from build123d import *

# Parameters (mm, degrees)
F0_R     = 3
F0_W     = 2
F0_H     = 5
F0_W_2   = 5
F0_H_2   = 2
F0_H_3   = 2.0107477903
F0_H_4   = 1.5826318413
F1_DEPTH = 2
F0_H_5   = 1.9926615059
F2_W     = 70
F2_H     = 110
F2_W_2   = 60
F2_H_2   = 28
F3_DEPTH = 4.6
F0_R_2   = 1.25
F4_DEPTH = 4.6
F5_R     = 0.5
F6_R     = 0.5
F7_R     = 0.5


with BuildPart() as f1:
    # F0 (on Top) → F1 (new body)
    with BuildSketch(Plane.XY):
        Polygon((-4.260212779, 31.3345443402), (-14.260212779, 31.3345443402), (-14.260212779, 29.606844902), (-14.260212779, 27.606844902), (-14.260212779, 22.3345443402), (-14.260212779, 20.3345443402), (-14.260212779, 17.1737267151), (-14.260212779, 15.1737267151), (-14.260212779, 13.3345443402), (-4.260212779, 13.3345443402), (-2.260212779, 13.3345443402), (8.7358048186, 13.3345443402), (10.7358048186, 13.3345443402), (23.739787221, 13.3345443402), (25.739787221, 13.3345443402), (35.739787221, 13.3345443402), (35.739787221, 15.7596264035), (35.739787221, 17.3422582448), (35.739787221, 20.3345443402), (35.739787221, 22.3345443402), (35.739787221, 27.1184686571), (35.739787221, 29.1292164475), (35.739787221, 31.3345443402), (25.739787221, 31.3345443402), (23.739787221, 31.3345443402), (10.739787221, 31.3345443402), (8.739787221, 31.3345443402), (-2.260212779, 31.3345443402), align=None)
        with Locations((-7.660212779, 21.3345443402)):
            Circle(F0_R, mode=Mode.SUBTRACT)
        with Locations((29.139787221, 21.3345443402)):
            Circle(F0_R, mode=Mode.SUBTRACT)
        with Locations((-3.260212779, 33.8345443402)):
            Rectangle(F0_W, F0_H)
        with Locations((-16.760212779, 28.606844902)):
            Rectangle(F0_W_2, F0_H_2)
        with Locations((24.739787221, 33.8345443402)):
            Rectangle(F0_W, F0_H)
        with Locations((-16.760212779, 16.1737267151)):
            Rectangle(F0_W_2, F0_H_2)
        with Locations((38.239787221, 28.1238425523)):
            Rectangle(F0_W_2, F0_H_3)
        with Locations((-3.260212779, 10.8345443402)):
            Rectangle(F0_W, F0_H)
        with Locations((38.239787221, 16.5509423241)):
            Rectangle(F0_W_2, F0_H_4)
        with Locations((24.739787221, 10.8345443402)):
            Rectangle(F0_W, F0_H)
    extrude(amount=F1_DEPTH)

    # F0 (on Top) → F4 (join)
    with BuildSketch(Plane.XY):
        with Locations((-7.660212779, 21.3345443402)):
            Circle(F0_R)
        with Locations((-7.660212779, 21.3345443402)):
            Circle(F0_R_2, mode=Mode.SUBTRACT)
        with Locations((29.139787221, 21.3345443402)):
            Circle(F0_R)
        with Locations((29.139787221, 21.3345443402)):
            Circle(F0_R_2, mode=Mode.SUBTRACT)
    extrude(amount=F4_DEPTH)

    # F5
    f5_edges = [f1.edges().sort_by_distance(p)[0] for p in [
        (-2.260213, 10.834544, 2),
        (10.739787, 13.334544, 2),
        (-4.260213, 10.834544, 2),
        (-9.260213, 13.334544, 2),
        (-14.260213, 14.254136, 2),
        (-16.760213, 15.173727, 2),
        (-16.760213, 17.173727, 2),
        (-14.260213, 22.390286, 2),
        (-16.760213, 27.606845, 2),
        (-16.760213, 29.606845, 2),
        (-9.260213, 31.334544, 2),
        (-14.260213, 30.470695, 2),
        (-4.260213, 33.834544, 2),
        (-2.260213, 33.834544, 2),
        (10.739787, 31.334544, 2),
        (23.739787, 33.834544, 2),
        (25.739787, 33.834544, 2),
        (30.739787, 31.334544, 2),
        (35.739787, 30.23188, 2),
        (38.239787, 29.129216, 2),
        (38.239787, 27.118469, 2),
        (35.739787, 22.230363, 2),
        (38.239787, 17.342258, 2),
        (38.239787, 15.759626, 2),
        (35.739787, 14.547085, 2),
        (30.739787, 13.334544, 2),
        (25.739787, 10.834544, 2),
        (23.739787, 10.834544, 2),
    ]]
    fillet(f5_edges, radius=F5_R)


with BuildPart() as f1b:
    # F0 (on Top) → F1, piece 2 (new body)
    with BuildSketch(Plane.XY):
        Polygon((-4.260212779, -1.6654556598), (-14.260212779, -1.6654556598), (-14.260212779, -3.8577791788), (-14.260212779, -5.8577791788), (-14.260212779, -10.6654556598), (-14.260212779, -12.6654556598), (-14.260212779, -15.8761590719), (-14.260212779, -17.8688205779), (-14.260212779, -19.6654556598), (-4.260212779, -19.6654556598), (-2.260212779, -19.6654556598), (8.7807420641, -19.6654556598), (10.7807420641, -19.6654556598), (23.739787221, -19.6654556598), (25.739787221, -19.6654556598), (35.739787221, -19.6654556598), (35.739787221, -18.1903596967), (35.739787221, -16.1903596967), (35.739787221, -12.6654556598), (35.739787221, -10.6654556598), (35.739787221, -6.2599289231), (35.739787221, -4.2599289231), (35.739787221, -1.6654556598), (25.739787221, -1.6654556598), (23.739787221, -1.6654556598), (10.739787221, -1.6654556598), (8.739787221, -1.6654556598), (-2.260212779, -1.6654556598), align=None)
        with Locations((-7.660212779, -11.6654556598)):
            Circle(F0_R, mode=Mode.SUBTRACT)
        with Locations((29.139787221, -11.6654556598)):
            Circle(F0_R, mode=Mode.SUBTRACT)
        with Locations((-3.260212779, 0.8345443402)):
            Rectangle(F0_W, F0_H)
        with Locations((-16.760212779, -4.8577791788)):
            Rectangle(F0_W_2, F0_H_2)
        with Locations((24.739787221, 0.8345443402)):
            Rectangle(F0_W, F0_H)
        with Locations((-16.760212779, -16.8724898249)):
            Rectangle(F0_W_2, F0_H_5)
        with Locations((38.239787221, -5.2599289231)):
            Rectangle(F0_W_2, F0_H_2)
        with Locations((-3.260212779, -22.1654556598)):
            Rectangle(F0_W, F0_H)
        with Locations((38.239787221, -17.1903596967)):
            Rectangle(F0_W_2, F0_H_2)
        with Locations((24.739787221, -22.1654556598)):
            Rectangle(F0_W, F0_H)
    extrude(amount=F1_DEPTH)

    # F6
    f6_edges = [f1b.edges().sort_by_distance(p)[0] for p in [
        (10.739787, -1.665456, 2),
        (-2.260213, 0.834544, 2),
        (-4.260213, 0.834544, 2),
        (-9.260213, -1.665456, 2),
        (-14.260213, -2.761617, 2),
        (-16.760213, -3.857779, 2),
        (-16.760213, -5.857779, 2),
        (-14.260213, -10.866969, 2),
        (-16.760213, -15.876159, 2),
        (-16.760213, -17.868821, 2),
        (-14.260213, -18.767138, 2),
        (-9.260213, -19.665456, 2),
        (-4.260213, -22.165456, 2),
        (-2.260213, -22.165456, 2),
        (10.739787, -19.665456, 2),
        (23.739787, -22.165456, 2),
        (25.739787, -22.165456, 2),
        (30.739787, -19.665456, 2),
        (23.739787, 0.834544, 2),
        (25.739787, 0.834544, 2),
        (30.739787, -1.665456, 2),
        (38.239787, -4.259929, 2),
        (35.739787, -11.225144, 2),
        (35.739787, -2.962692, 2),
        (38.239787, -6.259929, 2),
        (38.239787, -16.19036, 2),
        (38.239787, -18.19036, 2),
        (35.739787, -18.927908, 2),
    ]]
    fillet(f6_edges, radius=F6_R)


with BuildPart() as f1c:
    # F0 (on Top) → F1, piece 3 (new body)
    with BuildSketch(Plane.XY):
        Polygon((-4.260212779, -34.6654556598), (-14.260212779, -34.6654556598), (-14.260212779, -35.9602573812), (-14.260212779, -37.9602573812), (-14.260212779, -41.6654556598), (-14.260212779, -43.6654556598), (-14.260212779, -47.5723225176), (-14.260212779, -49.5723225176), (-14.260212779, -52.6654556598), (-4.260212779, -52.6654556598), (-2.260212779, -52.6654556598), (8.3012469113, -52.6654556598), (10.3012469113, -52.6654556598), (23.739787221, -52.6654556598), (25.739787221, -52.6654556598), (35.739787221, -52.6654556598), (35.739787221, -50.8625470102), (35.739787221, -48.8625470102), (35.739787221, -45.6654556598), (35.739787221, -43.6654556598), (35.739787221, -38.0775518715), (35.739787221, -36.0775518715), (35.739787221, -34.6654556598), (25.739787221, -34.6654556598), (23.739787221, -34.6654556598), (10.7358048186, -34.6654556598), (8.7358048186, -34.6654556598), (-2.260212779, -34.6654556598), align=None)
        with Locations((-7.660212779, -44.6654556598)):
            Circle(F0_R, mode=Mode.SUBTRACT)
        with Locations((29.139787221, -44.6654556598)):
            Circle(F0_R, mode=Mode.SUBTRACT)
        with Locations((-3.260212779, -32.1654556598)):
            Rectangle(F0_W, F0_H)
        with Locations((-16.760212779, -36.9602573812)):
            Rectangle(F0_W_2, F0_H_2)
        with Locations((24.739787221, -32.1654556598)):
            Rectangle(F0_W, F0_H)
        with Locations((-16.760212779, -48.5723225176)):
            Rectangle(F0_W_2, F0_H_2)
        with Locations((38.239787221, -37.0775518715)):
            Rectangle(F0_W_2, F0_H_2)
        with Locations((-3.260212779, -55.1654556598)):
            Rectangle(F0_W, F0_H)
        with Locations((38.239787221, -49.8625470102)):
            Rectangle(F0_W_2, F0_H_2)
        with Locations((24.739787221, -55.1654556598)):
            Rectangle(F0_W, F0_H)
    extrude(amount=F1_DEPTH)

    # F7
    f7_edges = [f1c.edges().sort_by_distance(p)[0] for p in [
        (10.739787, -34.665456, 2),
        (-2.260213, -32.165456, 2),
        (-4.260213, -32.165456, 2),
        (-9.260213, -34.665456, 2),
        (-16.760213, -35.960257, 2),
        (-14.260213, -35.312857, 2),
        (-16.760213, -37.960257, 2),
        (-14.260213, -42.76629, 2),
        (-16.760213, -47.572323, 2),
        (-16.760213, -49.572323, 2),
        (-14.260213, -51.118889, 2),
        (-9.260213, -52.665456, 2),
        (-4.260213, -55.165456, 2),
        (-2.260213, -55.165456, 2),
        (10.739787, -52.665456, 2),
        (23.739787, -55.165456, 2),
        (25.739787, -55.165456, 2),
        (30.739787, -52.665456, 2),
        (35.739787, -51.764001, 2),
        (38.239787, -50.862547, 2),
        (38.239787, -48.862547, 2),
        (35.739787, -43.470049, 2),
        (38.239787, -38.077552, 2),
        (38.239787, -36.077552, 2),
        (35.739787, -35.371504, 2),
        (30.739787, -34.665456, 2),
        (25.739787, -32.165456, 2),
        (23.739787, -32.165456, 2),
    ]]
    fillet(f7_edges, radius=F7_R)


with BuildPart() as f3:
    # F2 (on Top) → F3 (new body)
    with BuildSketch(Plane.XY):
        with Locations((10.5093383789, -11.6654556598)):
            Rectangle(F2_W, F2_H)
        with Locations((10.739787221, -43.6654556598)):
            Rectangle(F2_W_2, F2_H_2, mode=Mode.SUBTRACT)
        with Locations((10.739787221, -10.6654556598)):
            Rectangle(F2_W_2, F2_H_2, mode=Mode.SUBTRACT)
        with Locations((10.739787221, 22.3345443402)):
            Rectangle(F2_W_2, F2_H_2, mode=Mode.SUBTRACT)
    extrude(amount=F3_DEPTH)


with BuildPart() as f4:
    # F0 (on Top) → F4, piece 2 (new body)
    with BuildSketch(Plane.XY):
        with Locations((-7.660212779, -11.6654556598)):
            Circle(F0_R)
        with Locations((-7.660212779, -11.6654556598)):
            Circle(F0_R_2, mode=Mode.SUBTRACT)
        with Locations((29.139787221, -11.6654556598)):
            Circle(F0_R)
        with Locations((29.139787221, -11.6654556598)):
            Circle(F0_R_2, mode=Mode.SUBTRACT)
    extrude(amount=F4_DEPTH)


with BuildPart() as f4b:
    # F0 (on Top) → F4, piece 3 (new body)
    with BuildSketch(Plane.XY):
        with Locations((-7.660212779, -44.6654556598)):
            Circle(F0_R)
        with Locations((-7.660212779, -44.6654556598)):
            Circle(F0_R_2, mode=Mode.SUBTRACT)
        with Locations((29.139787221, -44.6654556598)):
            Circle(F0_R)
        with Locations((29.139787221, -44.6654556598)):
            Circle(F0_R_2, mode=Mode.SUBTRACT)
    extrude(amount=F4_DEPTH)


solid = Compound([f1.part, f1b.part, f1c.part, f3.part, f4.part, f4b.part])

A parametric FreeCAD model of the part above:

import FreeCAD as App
import Part
import Sketcher
from FreeCAD import Vector
Q = App.Units.Quantity


def edges_at(feature, points):
    """Names of the edges that pass closest to the given points."""
    edges = feature.Shape.Edges
    near = lambda p: min(range(len(edges)), key=lambda i: edges[i].distToShape(Part.Vertex(*p))[0])
    return sorted({f"Edge{near(p) + 1}" for p in points})


def add_polygon(sketch, points):
    """Adds a closed chain of lines whose ends are joined by coincident constraints."""
    first, n = sketch.GeometryCount, len(points)
    for a, b in zip(points, points[1:] + points[:1]):
        sketch.addGeometry(Part.LineSegment(App.Vector(*a, 0), App.Vector(*b, 0)), False)
    for i in range(n):
        sketch.addConstraint(Sketcher.Constraint("Coincident", first + i, 2, first + (i + 1) % n, 1))

doc = App.newDocument("Part")
body = doc.addObject("PartDesign::Body", "Body")

# Sketch on XY plane
sketch1 = body.newObject("Sketcher::SketchObject", "Sketch")
sketch1.AttachmentSupport = (doc.getObject("XY_Plane"), [""])
sketch1.MapMode = "FlatFace"
add_polygon(sketch1, [(-14.260213, 31.334544), (-14.260213, 29.606845), (-19.260213, 29.606845), (-19.260213, 27.606845), (-14.260213, 27.606845), (-14.260213, 17.173727), (-19.260213, 17.173727), (-19.260213, 15.173727), (-14.260213, 15.173727), (-14.260213, 13.334544), (-4.260213, 13.334544), (-4.260213, 8.334544), (-2.260213, 8.334544), (-2.260213, 13.334544), (23.739787, 13.334544), (23.739787, 8.334544), (25.739787, 8.334544), (25.739787, 13.334544), (35.739787, 13.334544), (35.739787, 15.759626), (40.739787, 15.759626), (40.739787, 17.342258), (35.739787, 17.342258), (35.739787, 27.118469), (40.739787, 27.118469), (40.739787, 29.129216), (35.739787, 29.129216), (35.739787, 31.334544), (25.739787, 31.334544), (25.739787, 36.334544), (23.739787, 36.334544), (23.739787, 31.334544), (-2.260213, 31.334544), (-2.260213, 36.334544), (-4.260213, 36.334544), (-4.260213, 31.334544)])  # lines 0-35
sketch1.addGeometry(Part.Circle(Vector(-7.660213, 21.334544, 0), Vector(0, 0, 1), 3), False)  # 36
sketch1.addGeometry(Part.Circle(Vector(29.139787, 21.334544, 0), Vector(0, 0, 1), 3), False)  # 37
sketch1.addConstraint([
    Sketcher.Constraint("Vertical", 0),
    Sketcher.Constraint("Horizontal", 1),
    Sketcher.Constraint("Vertical", 2),
    Sketcher.Constraint("Horizontal", 3),
    Sketcher.Constraint("Vertical", 4),
    Sketcher.Constraint("Horizontal", 5),
    Sketcher.Constraint("Vertical", 6),
    Sketcher.Constraint("Horizontal", 7),
    Sketcher.Constraint("Vertical", 8),
    Sketcher.Constraint("Horizontal", 9),
    Sketcher.Constraint("Vertical", 10),
    Sketcher.Constraint("Horizontal", 11),
    Sketcher.Constraint("Vertical", 12),
    Sketcher.Constraint("Horizontal", 13),
    Sketcher.Constraint("Vertical", 14),
    Sketcher.Constraint("Horizontal", 15),
    Sketcher.Constraint("Vertical", 16),
    Sketcher.Constraint("Horizontal", 17),
    Sketcher.Constraint("Vertical", 18),
    Sketcher.Constraint("Horizontal", 19),
    Sketcher.Constraint("Vertical", 20),
    Sketcher.Constraint("Horizontal", 21),
    Sketcher.Constraint("Vertical", 22),
    Sketcher.Constraint("Horizontal", 23),
    Sketcher.Constraint("Vertical", 24),
    Sketcher.Constraint("Horizontal", 25),
    Sketcher.Constraint("Vertical", 26),
    Sketcher.Constraint("Horizontal", 27),
    Sketcher.Constraint("Vertical", 28),
    Sketcher.Constraint("Horizontal", 29),
    Sketcher.Constraint("Vertical", 30),
    Sketcher.Constraint("Horizontal", 31),
    Sketcher.Constraint("Vertical", 32),
    Sketcher.Constraint("Horizontal", 33),
    Sketcher.Constraint("Vertical", 34),
    Sketcher.Constraint("Horizontal", 35),
    Sketcher.Constraint("Equal", 36, 37),
    Sketcher.Constraint("Horizontal", 36, 3, 37, 3),
    Sketcher.Constraint("Horizontal", 9, 2, 12, 2),
    Sketcher.Constraint("Horizontal", 11, 2, 14, 2),
    Sketcher.Constraint("Horizontal", 13, 2, 16, 2),
    Sketcher.Constraint("Horizontal", 27, 2, 30, 2),
    Sketcher.Constraint("Horizontal", 29, 2, 32, 2),
    Sketcher.Constraint("Horizontal", 31, 2, 34, 2),
    Sketcher.Constraint("Vertical", 0, 2, 3, 2),
    Sketcher.Constraint("Vertical", 2, 2, 5, 2),
    Sketcher.Constraint("Vertical", 4, 2, 7, 2),
    Sketcher.Constraint("Vertical", 18, 2, 21, 2),
    Sketcher.Constraint("Vertical", 20, 2, 23, 2),
    Sketcher.Constraint("Vertical", 22, 2, 25, 2),
    Sketcher.Constraint("Vertical", 16, 2, 27, 2),
    Sketcher.Constraint("Vertical", 14, 2, 29, 2),
    Sketcher.Constraint("Vertical", 12, 2, 31, 2),
    Sketcher.Constraint("Vertical", 10, 2, 33, 2),
    Sketcher.Constraint("Equal", 11, 15),
    Sketcher.Constraint("Equal", 9, 17),
    Sketcher.Constraint("Equal", 7, 19),
    Sketcher.Constraint("Equal", 33, 2),
    Sketcher.Constraint("Equal", 2, 6),
    Sketcher.Constraint("Equal", 25, 10),
    Sketcher.Constraint("Equal", 16, 28),
    Sketcher.Constraint("Diameter", 36, Q("6 mm")),
    Sketcher.Constraint("DistanceX", 1, 2, 1, 1, Q("5 mm")),
    Sketcher.Constraint("DistanceX", 9, 1, 9, 2, Q("10 mm")),
    Sketcher.Constraint("DistanceX", 11, 1, 11, 2, Q("2 mm")),
    Sketcher.Constraint("DistanceX", 13, 1, 13, 2, Q("26 mm")),
    Sketcher.Constraint("DistanceY", 8, 2, 36, 3, Q("8 mm")),
    Sketcher.Constraint("DistanceY", 37, 3, 26, 2, Q("10 mm")),
    Sketcher.Constraint("DistanceX", 36, 3, 37, 3, Q("36.8 mm")),
    Sketcher.Constraint("DistanceX", 0, 2, 36, 3, Q("6.6 mm")),
    Sketcher.Constraint("DistanceY", 0, 2, 0, 1, Q("1.727699 mm")),
    Sketcher.Constraint("DistanceY", 4, 2, 4, 1, Q("10.433118 mm")),
    Sketcher.Constraint("DistanceY", 20, 1, 20, 2, Q("1.582632 mm")),
    Sketcher.Constraint("DistanceY", 22, 1, 22, 2, Q("9.77621 mm")),
    Sketcher.Constraint("DistanceY", 18, 1, 18, 2, Q("2.425082 mm")),
    Sketcher.Constraint("DistanceY", 24, 1, 24, 2, Q("2.010748 mm")),
    Sketcher.Constraint("DistanceY", -1, 1, 20, 2, Q("17.342258 mm")),
    Sketcher.Constraint("DistanceX", 36, 3, -1, 1, Q("7.660213 mm")),
])
pad1 = body.newObject("PartDesign::Pad", "Pad")
pad1.Profile = sketch1
pad1.Length = 2

# Sketch on XY plane
sketch2 = body.newObject("Sketcher::SketchObject", "Sketch001")
sketch2.AttachmentSupport = (doc.getObject("XY_Plane"), [""])
sketch2.MapMode = "FlatFace"
sketch2.addGeometry([
    Part.Circle(Vector(-7.660213, 21.334544, 0), Vector(0, 0, 1), 3),
    Part.Circle(Vector(-7.660213, 21.334544, 0), Vector(0, 0, 1), 1.25),
    Part.Circle(Vector(29.139787, 21.334544, 0), Vector(0, 0, 1), 3),
    Part.Circle(Vector(29.139787, 21.334544, 0), Vector(0, 0, 1), 1.25),
], False)
sketch2.addConstraint([
    Sketcher.Constraint("Coincident", 1, 3, 0, 3),
    Sketcher.Constraint("Coincident", 3, 3, 2, 3),
    Sketcher.Constraint("Equal", 0, 2),
    Sketcher.Constraint("Equal", 1, 3),
    Sketcher.Constraint("Horizontal", 1, 3, 2, 3),
    Sketcher.Constraint("Diameter", 0, Q("6 mm")),
    Sketcher.Constraint("Diameter", 1, Q("2.5 mm")),
    Sketcher.Constraint("DistanceX", 0, 3, 2, 3, Q("36.8 mm")),
    Sketcher.Constraint("DistanceX", 0, 3, -1, 1, Q("7.660213 mm")),
    Sketcher.Constraint("DistanceY", -1, 1, 0, 3, Q("21.334544 mm")),
])
pad2 = body.newObject("PartDesign::Pad", "Pad001")
pad2.Profile = sketch2
pad2.Length = 4.6
doc.recompute()

fillet = body.newObject("PartDesign::Fillet", "Fillet")
fillet.Base = (pad2, edges_at(pad2, [
    (-2.26, 10.835, 2),
    (10.74, 13.335, 2),
    (-4.26, 10.835, 2),
    (-9.26, 13.335, 2),
    (-14.26, 14.254, 2),
    (-16.76, 15.174, 2),
    (-16.76, 17.174, 2),
    (-14.26, 22.39, 2),
    (-16.76, 27.607, 2),
    (-16.76, 29.607, 2),
    (-9.26, 31.335, 2),
    (-14.26, 30.471, 2),
    (-4.26, 33.835, 2),
    (-2.26, 33.835, 2),
    (10.74, 31.335, 2),
    (23.74, 33.835, 2),
    (25.74, 33.835, 2),
    (30.74, 31.335, 2),
    (35.74, 30.232, 2),
    (38.24, 29.129, 2),
    (38.24, 27.118, 2),
    (35.74, 22.23, 2),
    (38.24, 17.342, 2),
    (38.24, 15.76, 2),
    (35.74, 14.547, 2),
    (30.74, 13.335, 2),
    (25.74, 10.835, 2),
    (23.74, 10.835, 2),
]))
fillet.Radius = 0.5
body2 = doc.addObject("PartDesign::Body", "Body001")

# Sketch on XY plane
sketch3 = body2.newObject("Sketcher::SketchObject", "Sketch002")
sketch3.AttachmentSupport = (doc.getObject("XY_Plane001"), [""])
sketch3.MapMode = "FlatFace"
add_polygon(sketch3, [(-14.260213, -1.665456), (-14.260213, -3.857779), (-19.260213, -3.857779), (-19.260213, -5.857779), (-14.260213, -5.857779), (-14.260213, -15.876159), (-19.260213, -15.876159), (-19.260213, -17.868821), (-14.260213, -17.868821), (-14.260213, -19.665456), (-4.260213, -19.665456), (-4.260213, -24.665456), (-2.260213, -24.665456), (-2.260213, -19.665456), (23.739787, -19.665456), (23.739787, -24.665456), (25.739787, -24.665456), (25.739787, -19.665456), (35.739787, -19.665456), (35.739787, -18.19036), (40.739787, -18.19036), (40.739787, -16.19036), (35.739787, -16.19036), (35.739787, -6.259929), (40.739787, -6.259929), (40.739787, -4.259929), (35.739787, -4.259929), (35.739787, -1.665456), (25.739787, -1.665456), (25.739787, 3.334544), (23.739787, 3.334544), (23.739787, -1.665456), (-2.260213, -1.665456), (-2.260213, 3.334544), (-4.260213, 3.334544), (-4.260213, -1.665456)])  # lines 0-35
sketch3.addGeometry(Part.Circle(Vector(-7.660213, -11.665456, 0), Vector(0, 0, 1), 3), False)  # 36
sketch3.addGeometry(Part.Circle(Vector(29.139787, -11.665456, 0), Vector(0, 0, 1), 3), False)  # 37
sketch3.addConstraint([
    Sketcher.Constraint("Vertical", 0),
    Sketcher.Constraint("Horizontal", 1),
    Sketcher.Constraint("Vertical", 2),
    Sketcher.Constraint("Horizontal", 3),
    Sketcher.Constraint("Vertical", 4),
    Sketcher.Constraint("Horizontal", 5),
    Sketcher.Constraint("Vertical", 6),
    Sketcher.Constraint("Horizontal", 7),
    Sketcher.Constraint("Vertical", 8),
    Sketcher.Constraint("Horizontal", 9),
    Sketcher.Constraint("Vertical", 10),
    Sketcher.Constraint("Horizontal", 11),
    Sketcher.Constraint("Vertical", 12),
    Sketcher.Constraint("Horizontal", 13),
    Sketcher.Constraint("Vertical", 14),
    Sketcher.Constraint("Horizontal", 15),
    Sketcher.Constraint("Vertical", 16),
    Sketcher.Constraint("Horizontal", 17),
    Sketcher.Constraint("Vertical", 18),
    Sketcher.Constraint("Horizontal", 19),
    Sketcher.Constraint("Vertical", 20),
    Sketcher.Constraint("Horizontal", 21),
    Sketcher.Constraint("Vertical", 22),
    Sketcher.Constraint("Horizontal", 23),
    Sketcher.Constraint("Vertical", 24),
    Sketcher.Constraint("Horizontal", 25),
    Sketcher.Constraint("Vertical", 26),
    Sketcher.Constraint("Horizontal", 27),
    Sketcher.Constraint("Vertical", 28),
    Sketcher.Constraint("Horizontal", 29),
    Sketcher.Constraint("Vertical", 30),
    Sketcher.Constraint("Horizontal", 31),
    Sketcher.Constraint("Vertical", 32),
    Sketcher.Constraint("Horizontal", 33),
    Sketcher.Constraint("Vertical", 34),
    Sketcher.Constraint("Horizontal", 35),
    Sketcher.Constraint("Equal", 36, 37),
    Sketcher.Constraint("Horizontal", 36, 3, 37, 3),
    Sketcher.Constraint("Horizontal", 9, 2, 12, 2),
    Sketcher.Constraint("Horizontal", 11, 2, 14, 2),
    Sketcher.Constraint("Horizontal", 13, 2, 16, 2),
    Sketcher.Constraint("Horizontal", 27, 2, 30, 2),
    Sketcher.Constraint("Horizontal", 29, 2, 32, 2),
    Sketcher.Constraint("Horizontal", 31, 2, 34, 2),
    Sketcher.Constraint("Vertical", 0, 2, 3, 2),
    Sketcher.Constraint("Vertical", 2, 2, 5, 2),
    Sketcher.Constraint("Vertical", 4, 2, 7, 2),
    Sketcher.Constraint("Vertical", 18, 2, 21, 2),
    Sketcher.Constraint("Vertical", 20, 2, 23, 2),
    Sketcher.Constraint("Vertical", 22, 2, 25, 2),
    Sketcher.Constraint("Vertical", 16, 2, 27, 2),
    Sketcher.Constraint("Vertical", 14, 2, 29, 2),
    Sketcher.Constraint("Vertical", 12, 2, 31, 2),
    Sketcher.Constraint("Vertical", 10, 2, 33, 2),
    Sketcher.Constraint("Equal", 11, 15),
    Sketcher.Constraint("Equal", 9, 17),
    Sketcher.Constraint("Equal", 7, 19),
    Sketcher.Constraint("Equal", 33, 2),
    Sketcher.Constraint("Equal", 25, 10),
    Sketcher.Constraint("Equal", 2, 20),
    Sketcher.Constraint("Equal", 20, 24),
    Sketcher.Constraint("Equal", 16, 28),
    Sketcher.Constraint("Diameter", 36, Q("6 mm")),
    Sketcher.Constraint("DistanceX", 1, 2, 1, 1, Q("5 mm")),
    Sketcher.Constraint("DistanceX", 9, 1, 9, 2, Q("10 mm")),
    Sketcher.Constraint("DistanceX", 11, 1, 11, 2, Q("2 mm")),
    Sketcher.Constraint("DistanceX", 13, 1, 13, 2, Q("26 mm")),
    Sketcher.Constraint("DistanceY", 8, 2, 36, 3, Q("8 mm")),
    Sketcher.Constraint("DistanceY", 37, 3, 26, 2, Q("10 mm")),
    Sketcher.Constraint("DistanceX", 36, 3, 37, 3, Q("36.8 mm")),
    Sketcher.Constraint("DistanceX", 0, 2, 36, 3, Q("6.6 mm")),
    Sketcher.Constraint("DistanceY", 4, 2, 4, 1, Q("10.01838 mm")),
    Sketcher.Constraint("DistanceY", 6, 2, 6, 1, Q("1.992662 mm")),
    Sketcher.Constraint("DistanceY", 22, 1, 22, 2, Q("9.930431 mm")),
    Sketcher.Constraint("DistanceY", 0, 2, 0, 1, Q("2.192324 mm")),
    Sketcher.Constraint("DistanceY", 18, 1, 18, 2, Q("1.475096 mm")),
    Sketcher.Constraint("DistanceY", 0, 2, -1, 1, Q("3.857779 mm")),
    Sketcher.Constraint("DistanceX", 36, 3, -1, 1, Q("7.660213 mm")),
])
pad3 = body2.newObject("PartDesign::Pad", "Pad002")
pad3.Profile = sketch3
pad3.Length = 2
doc.recompute()

fillet2 = body2.newObject("PartDesign::Fillet", "Fillet001")
fillet2.Base = (pad3, edges_at(pad3, [
    (10.74, -1.665, 2),
    (-2.26, 0.835, 2),
    (-4.26, 0.835, 2),
    (-9.26, -1.665, 2),
    (-14.26, -2.762, 2),
    (-16.76, -3.858, 2),
    (-16.76, -5.858, 2),
    (-14.26, -10.867, 2),
    (-16.76, -15.876, 2),
    (-16.76, -17.869, 2),
    (-14.26, -18.767, 2),
    (-9.26, -19.665, 2),
    (-4.26, -22.165, 2),
    (-2.26, -22.165, 2),
    (10.74, -19.665, 2),
    (23.74, -22.165, 2),
    (25.74, -22.165, 2),
    (30.74, -19.665, 2),
    (23.74, 0.835, 2),
    (25.74, 0.835, 2),
    (30.74, -1.665, 2),
    (38.24, -4.26, 2),
    (35.74, -11.225, 2),
    (35.74, -2.963, 2),
    (38.24, -6.26, 2),
    (38.24, -16.19, 2),
    (38.24, -18.19, 2),
    (35.74, -18.928, 2),
]))
fillet2.Radius = 0.5
body3 = doc.addObject("PartDesign::Body", "Body002")

# Sketch on XY plane
sketch4 = body3.newObject("Sketcher::SketchObject", "Sketch003")
sketch4.AttachmentSupport = (doc.getObject("XY_Plane002"), [""])
sketch4.MapMode = "FlatFace"
add_polygon(sketch4, [(-14.260213, -34.665456), (-14.260213, -35.960257), (-19.260213, -35.960257), (-19.260213, -37.960257), (-14.260213, -37.960257), (-14.260213, -47.572323), (-19.260213, -47.572323), (-19.260213, -49.572323), (-14.260213, -49.572323), (-14.260213, -52.665456), (-4.260213, -52.665456), (-4.260213, -57.665456), (-2.260213, -57.665456), (-2.260213, -52.665456), (23.739787, -52.665456), (23.739787, -57.665456), (25.739787, -57.665456), (25.739787, -52.665456), (35.739787, -52.665456), (35.739787, -50.862547), (40.739787, -50.862547), (40.739787, -48.862547), (35.739787, -48.862547), (35.739787, -38.077552), (40.739787, -38.077552), (40.739787, -36.077552), (35.739787, -36.077552), (35.739787, -34.665456), (25.739787, -34.665456), (25.739787, -29.665456), (23.739787, -29.665456), (23.739787, -34.665456), (-2.260213, -34.665456), (-2.260213, -29.665456), (-4.260213, -29.665456), (-4.260213, -34.665456)])  # lines 0-35
sketch4.addGeometry(Part.Circle(Vector(-7.660213, -44.665456, 0), Vector(0, 0, 1), 3), False)  # 36
sketch4.addGeometry(Part.Circle(Vector(29.139787, -44.665456, 0), Vector(0, 0, 1), 3), False)  # 37
sketch4.addConstraint([
    Sketcher.Constraint("Vertical", 0),
    Sketcher.Constraint("Horizontal", 1),
    Sketcher.Constraint("Vertical", 2),
    Sketcher.Constraint("Horizontal", 3),
    Sketcher.Constraint("Vertical", 4),
    Sketcher.Constraint("Horizontal", 5),
    Sketcher.Constraint("Vertical", 6),
    Sketcher.Constraint("Horizontal", 7),
    Sketcher.Constraint("Vertical", 8),
    Sketcher.Constraint("Horizontal", 9),
    Sketcher.Constraint("Vertical", 10),
    Sketcher.Constraint("Horizontal", 11),
    Sketcher.Constraint("Vertical", 12),
    Sketcher.Constraint("Horizontal", 13),
    Sketcher.Constraint("Vertical", 14),
    Sketcher.Constraint("Horizontal", 15),
    Sketcher.Constraint("Vertical", 16),
    Sketcher.Constraint("Horizontal", 17),
    Sketcher.Constraint("Vertical", 18),
    Sketcher.Constraint("Horizontal", 19),
    Sketcher.Constraint("Vertical", 20),
    Sketcher.Constraint("Horizontal", 21),
    Sketcher.Constraint("Vertical", 22),
    Sketcher.Constraint("Horizontal", 23),
    Sketcher.Constraint("Vertical", 24),
    Sketcher.Constraint("Horizontal", 25),
    Sketcher.Constraint("Vertical", 26),
    Sketcher.Constraint("Horizontal", 27),
    Sketcher.Constraint("Vertical", 28),
    Sketcher.Constraint("Horizontal", 29),
    Sketcher.Constraint("Vertical", 30),
    Sketcher.Constraint("Horizontal", 31),
    Sketcher.Constraint("Vertical", 32),
    Sketcher.Constraint("Horizontal", 33),
    Sketcher.Constraint("Vertical", 34),
    Sketcher.Constraint("Horizontal", 35),
    Sketcher.Constraint("Equal", 36, 37),
    Sketcher.Constraint("Horizontal", 36, 3, 37, 3),
    Sketcher.Constraint("Horizontal", 9, 2, 12, 2),
    Sketcher.Constraint("Horizontal", 11, 2, 14, 2),
    Sketcher.Constraint("Horizontal", 13, 2, 16, 2),
    Sketcher.Constraint("Horizontal", 27, 2, 30, 2),
    Sketcher.Constraint("Horizontal", 29, 2, 32, 2),
    Sketcher.Constraint("Horizontal", 31, 2, 34, 2),
    Sketcher.Constraint("Vertical", 0, 2, 3, 2),
    Sketcher.Constraint("Vertical", 2, 2, 5, 2),
    Sketcher.Constraint("Vertical", 4, 2, 7, 2),
    Sketcher.Constraint("Vertical", 18, 2, 21, 2),
    Sketcher.Constraint("Vertical", 20, 2, 23, 2),
    Sketcher.Constraint("Vertical", 22, 2, 25, 2),
    Sketcher.Constraint("Vertical", 16, 2, 27, 2),
    Sketcher.Constraint("Vertical", 14, 2, 29, 2),
    Sketcher.Constraint("Vertical", 12, 2, 31, 2),
    Sketcher.Constraint("Vertical", 10, 2, 33, 2),
    Sketcher.Constraint("Equal", 11, 15),
    Sketcher.Constraint("Equal", 9, 17),
    Sketcher.Constraint("Equal", 7, 19),
    Sketcher.Constraint("Equal", 33, 2),
    Sketcher.Constraint("Equal", 2, 6),
    Sketcher.Constraint("Equal", 25, 10),
    Sketcher.Constraint("Equal", 6, 20),
    Sketcher.Constraint("Equal", 20, 24),
    Sketcher.Constraint("Equal", 16, 28),
    Sketcher.Constraint("Diameter", 36, Q("6 mm")),
    Sketcher.Constraint("DistanceX", 1, 2, 1, 1, Q("5 mm")),
    Sketcher.Constraint("DistanceX", 9, 1, 9, 2, Q("10 mm")),
    Sketcher.Constraint("DistanceX", 11, 1, 11, 2, Q("2 mm")),
    Sketcher.Constraint("DistanceX", 13, 1, 13, 2, Q("26 mm")),
    Sketcher.Constraint("DistanceY", 8, 2, 36, 3, Q("8 mm")),
    Sketcher.Constraint("DistanceY", 37, 3, 26, 2, Q("10 mm")),
    Sketcher.Constraint("DistanceX", 36, 3, 37, 3, Q("36.8 mm")),
    Sketcher.Constraint("DistanceX", 0, 2, 36, 3, Q("6.6 mm")),
    Sketcher.Constraint("DistanceY", 0, 2, 0, 1, Q("1.294802 mm")),
    Sketcher.Constraint("DistanceY", 18, 1, 18, 2, Q("1.802909 mm")),
    Sketcher.Constraint("DistanceY", 4, 2, 4, 1, Q("9.612065 mm")),
    Sketcher.Constraint("DistanceY", 22, 1, 22, 2, Q("10.784995 mm")),
    Sketcher.Constraint("DistanceY", 22, 2, -1, 1, Q("38.077552 mm")),
    Sketcher.Constraint("DistanceX", 36, 3, -1, 1, Q("7.660213 mm")),
])
pad4 = body3.newObject("PartDesign::Pad", "Pad003")
pad4.Profile = sketch4
pad4.Length = 2
doc.recompute()

fillet3 = body3.newObject("PartDesign::Fillet", "Fillet002")
fillet3.Base = (pad4, edges_at(pad4, [
    (10.74, -34.665, 2),
    (-2.26, -32.165, 2),
    (-4.26, -32.165, 2),
    (-9.26, -34.665, 2),
    (-16.76, -35.96, 2),
    (-14.26, -35.313, 2),
    (-16.76, -37.96, 2),
    (-14.26, -42.766, 2),
    (-16.76, -47.572, 2),
    (-16.76, -49.572, 2),
    (-14.26, -51.119, 2),
    (-9.26, -52.665, 2),
    (-4.26, -55.165, 2),
    (-2.26, -55.165, 2),
    (10.74, -52.665, 2),
    (23.74, -55.165, 2),
    (25.74, -55.165, 2),
    (30.74, -52.665, 2),
    (35.74, -51.764, 2),
    (38.24, -50.863, 2),
    (38.24, -48.863, 2),
    (35.74, -43.47, 2),
    (38.24, -38.078, 2),
    (38.24, -36.078, 2),
    (35.74, -35.372, 2),
    (30.74, -34.665, 2),
    (25.74, -32.165, 2),
    (23.74, -32.165, 2),
]))
fillet3.Radius = 0.5
body4 = doc.addObject("PartDesign::Body", "Body003")

# Sketch on XY plane
sketch5 = body4.newObject("Sketcher::SketchObject", "Sketch004")
sketch5.AttachmentSupport = (doc.getObject("XY_Plane003"), [""])
sketch5.MapMode = "FlatFace"
add_polygon(sketch5, [(-24.490662, 43.334544), (-24.490662, -66.665456), (45.509338, -66.665456), (45.509338, 43.334544)])  # lines 0-3
add_polygon(sketch5, [(40.739787, -57.665456), (-19.260213, -57.665456), (-19.260213, -29.665456), (40.739787, -29.665456)])  # lines 4-7
add_polygon(sketch5, [(40.739787, -24.665456), (-19.260213, -24.665456), (-19.260213, 3.334544), (40.739787, 3.334544)])  # lines 8-11
add_polygon(sketch5, [(40.739787, 8.334544), (-19.260213, 8.334544), (-19.260213, 36.334544), (40.739787, 36.334544)])  # lines 12-15
sketch5.addConstraint([
    Sketcher.Constraint("Vertical", 0),
    Sketcher.Constraint("Horizontal", 1),
    Sketcher.Constraint("Vertical", 2),
    Sketcher.Constraint("Horizontal", 3),
    Sketcher.Constraint("Horizontal", 4),
    Sketcher.Constraint("Vertical", 5),
    Sketcher.Constraint("Horizontal", 6),
    Sketcher.Constraint("Vertical", 7),
    Sketcher.Constraint("Horizontal", 8),
    Sketcher.Constraint("Vertical", 9),
    Sketcher.Constraint("Horizontal", 10),
    Sketcher.Constraint("Vertical", 11),
    Sketcher.Constraint("Horizontal", 12),
    Sketcher.Constraint("Vertical", 13),
    Sketcher.Constraint("Horizontal", 14),
    Sketcher.Constraint("Vertical", 15),
    Sketcher.Constraint("Vertical", 5, 2, 8, 2),
    Sketcher.Constraint("Vertical", 7, 2, 10, 2),
    Sketcher.Constraint("Vertical", 9, 2, 12, 2),
    Sketcher.Constraint("Vertical", 11, 2, 14, 2),
    Sketcher.Constraint("Equal", 7, 9),
    Sketcher.Constraint("Equal", 11, 13),
    Sketcher.Constraint("DistanceX", 1, 1, 1, 2, Q("70 mm")),
    Sketcher.Constraint("DistanceX", 4, 2, 4, 1, Q("60 mm")),
    Sketcher.Constraint("DistanceY", 0, 2, 0, 1, Q("110 mm")),
    Sketcher.Constraint("DistanceY", 5, 1, 5, 2, Q("28 mm")),
    Sketcher.Constraint("DistanceY", 0, 2, 4, 2, Q("9 mm")),
    Sketcher.Constraint("DistanceY", 5, 2, 8, 2, Q("5 mm")),
    Sketcher.Constraint("DistanceY", 9, 2, 12, 2, Q("5 mm")),
    Sketcher.Constraint("DistanceX", 0, 2, -1, 1, Q("24.490662 mm")),
    Sketcher.Constraint("DistanceX", 0, 2, 4, 2, Q("5.230449 mm")),
    Sketcher.Constraint("DistanceY", 0, 2, -1, 1, Q("66.665456 mm")),
])
pad5 = body4.newObject("PartDesign::Pad", "Pad004")
pad5.Profile = sketch5
pad5.Length = 4.6
body5 = doc.addObject("PartDesign::Body", "Body004")
body5.AllowCompound = True

# Sketch on XY plane
sketch6 = body5.newObject("Sketcher::SketchObject", "Sketch005")
sketch6.AttachmentSupport = (doc.getObject("XY_Plane004"), [""])
sketch6.MapMode = "FlatFace"
sketch6.addGeometry([
    Part.Circle(Vector(-7.660213, -11.665456, 0), Vector(0, 0, 1), 3),
    Part.Circle(Vector(-7.660213, -11.665456, 0), Vector(0, 0, 1), 1.25),
    Part.Circle(Vector(29.139787, -11.665456, 0), Vector(0, 0, 1), 3),
    Part.Circle(Vector(29.139787, -11.665456, 0), Vector(0, 0, 1), 1.25),
], False)
sketch6.addConstraint([
    Sketcher.Constraint("Coincident", 1, 3, 0, 3),
    Sketcher.Constraint("Coincident", 3, 3, 2, 3),
    Sketcher.Constraint("Equal", 0, 2),
    Sketcher.Constraint("Equal", 1, 3),
    Sketcher.Constraint("Horizontal", 1, 3, 2, 3),
    Sketcher.Constraint("Diameter", 0, Q("6 mm")),
    Sketcher.Constraint("Diameter", 1, Q("2.5 mm")),
    Sketcher.Constraint("DistanceX", 0, 3, 2, 3, Q("36.8 mm")),
    Sketcher.Constraint("DistanceX", 0, 3, -1, 1, Q("7.660213 mm")),
    Sketcher.Constraint("DistanceY", 0, 3, -1, 1, Q("11.665456 mm")),
])
pad6 = body5.newObject("PartDesign::Pad", "Pad005")
pad6.Profile = sketch6
pad6.Length = 4.6
body6 = doc.addObject("PartDesign::Body", "Body005")
body6.AllowCompound = True

# Sketch on XY plane
sketch7 = body6.newObject("Sketcher::SketchObject", "Sketch006")
sketch7.AttachmentSupport = (doc.getObject("XY_Plane005"), [""])
sketch7.MapMode = "FlatFace"
sketch7.addGeometry([
    Part.Circle(Vector(-7.660213, -44.665456, 0), Vector(0, 0, 1), 3),
    Part.Circle(Vector(-7.660213, -44.665456, 0), Vector(0, 0, 1), 1.25),
    Part.Circle(Vector(29.139787, -44.665456, 0), Vector(0, 0, 1), 3),
    Part.Circle(Vector(29.139787, -44.665456, 0), Vector(0, 0, 1), 1.25),
], False)
sketch7.addConstraint([
    Sketcher.Constraint("Coincident", 1, 3, 0, 3),
    Sketcher.Constraint("Coincident", 3, 3, 2, 3),
    Sketcher.Constraint("Equal", 0, 2),
    Sketcher.Constraint("Equal", 1, 3),
    Sketcher.Constraint("Horizontal", 1, 3, 2, 3),
    Sketcher.Constraint("Diameter", 0, Q("6 mm")),
    Sketcher.Constraint("Diameter", 1, Q("2.5 mm")),
    Sketcher.Constraint("DistanceX", 0, 3, 2, 3, Q("36.8 mm")),
    Sketcher.Constraint("DistanceX", 0, 3, -1, 1, Q("7.660213 mm")),
    Sketcher.Constraint("DistanceY", 0, 3, -1, 1, Q("44.665456 mm")),
])
pad7 = body6.newObject("PartDesign::Pad", "Pad006")
pad7.Profile = sketch7
pad7.Length = 4.6

doc.recompute()
